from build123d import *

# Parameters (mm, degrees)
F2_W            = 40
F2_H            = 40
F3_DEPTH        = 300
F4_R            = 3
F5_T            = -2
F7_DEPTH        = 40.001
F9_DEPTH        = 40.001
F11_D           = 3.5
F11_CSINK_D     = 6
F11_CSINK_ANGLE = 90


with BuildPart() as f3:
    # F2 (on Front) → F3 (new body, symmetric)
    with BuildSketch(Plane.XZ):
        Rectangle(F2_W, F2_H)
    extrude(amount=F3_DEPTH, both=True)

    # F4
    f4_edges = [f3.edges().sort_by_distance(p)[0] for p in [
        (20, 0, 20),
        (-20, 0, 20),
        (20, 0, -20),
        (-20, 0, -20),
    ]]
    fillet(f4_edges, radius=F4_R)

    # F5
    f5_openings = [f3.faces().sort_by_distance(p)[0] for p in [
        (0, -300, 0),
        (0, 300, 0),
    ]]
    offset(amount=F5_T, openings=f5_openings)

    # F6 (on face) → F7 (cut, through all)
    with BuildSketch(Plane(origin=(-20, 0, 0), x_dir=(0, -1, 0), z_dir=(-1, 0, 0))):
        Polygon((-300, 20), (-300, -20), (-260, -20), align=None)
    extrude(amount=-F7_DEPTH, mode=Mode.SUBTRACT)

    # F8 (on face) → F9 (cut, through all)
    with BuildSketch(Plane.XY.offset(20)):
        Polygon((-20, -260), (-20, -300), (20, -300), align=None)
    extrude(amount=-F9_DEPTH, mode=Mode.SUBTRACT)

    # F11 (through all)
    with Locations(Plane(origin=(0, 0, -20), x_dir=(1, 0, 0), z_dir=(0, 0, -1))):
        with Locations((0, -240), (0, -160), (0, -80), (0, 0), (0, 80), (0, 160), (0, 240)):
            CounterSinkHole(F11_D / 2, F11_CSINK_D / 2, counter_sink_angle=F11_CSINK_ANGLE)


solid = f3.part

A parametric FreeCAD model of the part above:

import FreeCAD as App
import Part
import Sketcher
from FreeCAD import Vector


def edges_at(feature, points):
    """Names of the edges that pass closest to the given points."""
    edges = feature.Shape.Edges
    near = lambda p: min(range(len(edges)), key=lambda i: edges[i].distToShape(Part.Vertex(*p))[0])
    return sorted({f"Edge{near(p) + 1}" for p in points})


def faces_at(feature, points):
    """Names of the faces that lie closest to the given points."""
    faces = feature.Shape.Faces
    near = lambda p: min(range(len(faces)), key=lambda i: faces[i].distToShape(Part.Vertex(*p))[0])
    return sorted({f"Face{near(p) + 1}" for p in points})

doc = App.newDocument("Part")
body = doc.addObject("PartDesign::Body", "Body")

sketch1 = body.newObject("Sketcher::SketchObject", "Sketch")
sketch1.AttachmentSupport = (doc.getObject("XZ_Plane"), [""])
sketch1.MapMode = "FlatFace"
sketch1.addGeometry([
    Part.LineSegment(Vector(-20, 20, 0), Vector(-20, -20, 0)),
    Part.LineSegment(Vector(-20, -20, 0), Vector(20, -20, 0)),
    Part.LineSegment(Vector(20, -20, 0), Vector(20, 20, 0)),
    Part.LineSegment(Vector(20, 20, 0), Vector(-20, 20, 0)),
], False)
sketch1.addConstraint([
    Sketcher.Constraint("Coincident", 0, 2, 1, 1),
    Sketcher.Constraint("Coincident", 1, 2, 2, 1),
    Sketcher.Constraint("Coincident", 2, 2, 3, 1),
    Sketcher.Constraint("Coincident", 3, 2, 0, 1),
    Sketcher.Constraint("Vertical", 0),
    Sketcher.Constraint("Horizontal", 1),
    Sketcher.Constraint("Vertical", 2),
    Sketcher.Constraint("Horizontal", 3),
    Sketcher.Constraint("Symmetric", 0, 2, 2, 2, -1, 1),
    Sketcher.Constraint("Equal", 3, 0),
    Sketcher.Constraint("DistanceX", 1, 1, 1, 2, 40.0),
])
pad1 = body.newObject("PartDesign::Pad", "Pad")
pad1.Profile = sketch1
pad1.Length = 600
pad1.Midplane = True
doc.recompute()

fillet = body.newObject("PartDesign::Fillet", "Fillet")
fillet.Base = (pad1, edges_at(pad1, [
    (20, 0, 20),
    (-20, 0, 20),
    (20, 0, -20),
    (-20, 0, -20),
]))
fillet.Radius = 3
doc.recompute()

thickness = body.newObject("PartDesign::Thickness", "Thickness")
thickness.Base = (fillet, faces_at(fillet, [(0, -300, 0), (0, 300, 0)]))
thickness.Value = 2
thickness.Reversed = True
thickness.Join = "Arc"

sketch2 = body.newObject("Sketcher::SketchObject", "Sketch001")
sketch2.AttachmentSupport = (doc.getObject("YZ_Plane"), [""])
sketch2.MapMode = "FlatFace"
sketch2.AttachmentOffset = App.Placement(Vector(0, 0, -20), App.Rotation())
sketch2.addGeometry([
    Part.LineSegment(Vector(300, 20, 0), Vector(300, -20, 0)),
    Part.LineSegment(Vector(300, -20, 0), Vector(260, -20, 0)),
    Part.LineSegment(Vector(260, -20, 0), Vector(300, 20, 0)),
], False)
sketch2.addConstraint([
    Sketcher.Constraint("Coincident", 0, 2, 1, 1),
    Sketcher.Constraint("Coincident", 1, 2, 2, 1),
    Sketcher.Constraint("Coincident", 2, 2, 0, 1),
    Sketcher.Constraint("Vertical", 0),
    Sketcher.Constraint("Horizontal", 1),
    Sketcher.Constraint("Equal", 1, 0),
    Sketcher.Constraint("DistanceX", 1, 2, 1, 1, 40.0),
    Sketcher.Constraint("DistanceX", -1, 1, 0, 2, 300.0),
    Sketcher.Constraint("DistanceY", 0, 2, -1, 1, 20.0),
])
pocket1 = body.newObject("PartDesign::Pocket", "Pocket")
pocket1.Profile = sketch2
pocket1.Type = "ThroughAll"
pocket1.Reversed = True

sketch3 = body.newObject("Sketcher::SketchObject", "Sketch002")
sketch3.AttachmentSupport = (doc.getObject("XY_Plane"), [""])
sketch3.MapMode = "FlatFace"
sketch3.AttachmentOffset = App.Placement(Vector(0, 0, 20), App.Rotation())
sketch3.addGeometry([
    Part.LineSegment(Vector(-20, -260, 0), Vector(-20, -300, 0)),
    Part.LineSegment(Vector(-20, -300, 0), Vector(20, -300, 0)),
    Part.LineSegment(Vector(20, -300, 0), Vector(-20, -260, 0)),
], False)
sketch3.addConstraint([
    Sketcher.Constraint("Coincident", 0, 2, 1, 1),
    Sketcher.Constraint("Coincident", 1, 2, 2, 1),
    Sketcher.Constraint("Coincident", 2, 2, 0, 1),
    Sketcher.Constraint("Vertical", 0),
    Sketcher.Constraint("Horizontal", 1),
    Sketcher.Constraint("Equal", 1, 0),
    Sketcher.Constraint("DistanceX", 1, 1, 1, 2, 40.0),
    Sketcher.Constraint("DistanceX", 0, 2, -1, 1, 20.0),
    Sketcher.Constraint("DistanceY", 0, 2, -1, 1, 300.0),
])
pocket2 = body.newObject("PartDesign::Pocket", "Pocket001")
pocket2.Profile = sketch3
pocket2.Type = "ThroughAll"

sketch4 = body.newObject("Sketcher::SketchObject", "Sketch003")
sketch4.AttachmentSupport = (doc.getObject("XY_Plane"), [""])
sketch4.MapMode = "FlatFace"
sketch4.AttachmentOffset = App.Placement(Vector(0, 0, -20), App.Rotation())
sketch4.addGeometry([
    Part.Circle(Vector(0, 240, 0), Vector(0, 0, 1), 1.8),
    Part.Circle(Vector(0, 160, 0), Vector(0, 0, 1), 1.8),
    Part.Circle(Vector(0, 80, 0), Vector(0, 0, 1), 1.8),
    Part.Circle(Vector(0, 0, 0), Vector(0, 0, 1), 1.8),
    Part.Circle(Vector(0, -80, 0), Vector(0, 0, 1), 1.8),
    Part.Circle(Vector(0, -160, 0), Vector(0, 0, 1), 1.8),
    Part.Circle(Vector(0, -240, 0), Vector(0, 0, 1), 1.8),
], False)
sketch4.addConstraint([
    Sketcher.Constraint("Coincident", 3, 3, -1, 1),
    Sketcher.Constraint("Equal", 0, 1),
    Sketcher.Constraint("Equal", 1, 2),
    Sketcher.Constraint("Equal", 2, 3),
    Sketcher.Constraint("Equal", 3, 4),
    Sketcher.Constraint("Equal", 4, 5),
    Sketcher.Constraint("Equal", 5, 6),
    Sketcher.Constraint("Symmetric", 2, 3, 4, 3, -1, 1),
    Sketcher.Constraint("Symmetric", 1, 3, 5, 3, -1, 1),
    Sketcher.Constraint("Symmetric", 0, 3, 6, 3, -1, 1),
    Sketcher.Constraint("PointOnObject", 0, 3, -2),
    Sketcher.Constraint("PointOnObject", 1, 3, -2),
    Sketcher.Constraint("PointOnObject", 2, 3, -2),
    Sketcher.Constraint("Diameter", 0, 3.5),
    Sketcher.Constraint("DistanceY", -1, 1, 0, 3, 240.0),
    Sketcher.Constraint("DistanceY", -1, 1, 1, 3, 160.0),
    Sketcher.Constraint("DistanceY", -1, 1, 2, 3, 80.0),
])
doc.recompute()
hole = body.newObject("PartDesign::Hole", "Hole")
hole.Profile = sketch4
hole.ThreadType = "None"
hole.Diameter = 3.5
hole.DepthType = "ThroughAll"
hole.HoleCutType = "Countersink"
hole.HoleCutDiameter = 6
hole.HoleCutCountersinkAngle = 90
hole.Reversed = True

doc.recompute()
